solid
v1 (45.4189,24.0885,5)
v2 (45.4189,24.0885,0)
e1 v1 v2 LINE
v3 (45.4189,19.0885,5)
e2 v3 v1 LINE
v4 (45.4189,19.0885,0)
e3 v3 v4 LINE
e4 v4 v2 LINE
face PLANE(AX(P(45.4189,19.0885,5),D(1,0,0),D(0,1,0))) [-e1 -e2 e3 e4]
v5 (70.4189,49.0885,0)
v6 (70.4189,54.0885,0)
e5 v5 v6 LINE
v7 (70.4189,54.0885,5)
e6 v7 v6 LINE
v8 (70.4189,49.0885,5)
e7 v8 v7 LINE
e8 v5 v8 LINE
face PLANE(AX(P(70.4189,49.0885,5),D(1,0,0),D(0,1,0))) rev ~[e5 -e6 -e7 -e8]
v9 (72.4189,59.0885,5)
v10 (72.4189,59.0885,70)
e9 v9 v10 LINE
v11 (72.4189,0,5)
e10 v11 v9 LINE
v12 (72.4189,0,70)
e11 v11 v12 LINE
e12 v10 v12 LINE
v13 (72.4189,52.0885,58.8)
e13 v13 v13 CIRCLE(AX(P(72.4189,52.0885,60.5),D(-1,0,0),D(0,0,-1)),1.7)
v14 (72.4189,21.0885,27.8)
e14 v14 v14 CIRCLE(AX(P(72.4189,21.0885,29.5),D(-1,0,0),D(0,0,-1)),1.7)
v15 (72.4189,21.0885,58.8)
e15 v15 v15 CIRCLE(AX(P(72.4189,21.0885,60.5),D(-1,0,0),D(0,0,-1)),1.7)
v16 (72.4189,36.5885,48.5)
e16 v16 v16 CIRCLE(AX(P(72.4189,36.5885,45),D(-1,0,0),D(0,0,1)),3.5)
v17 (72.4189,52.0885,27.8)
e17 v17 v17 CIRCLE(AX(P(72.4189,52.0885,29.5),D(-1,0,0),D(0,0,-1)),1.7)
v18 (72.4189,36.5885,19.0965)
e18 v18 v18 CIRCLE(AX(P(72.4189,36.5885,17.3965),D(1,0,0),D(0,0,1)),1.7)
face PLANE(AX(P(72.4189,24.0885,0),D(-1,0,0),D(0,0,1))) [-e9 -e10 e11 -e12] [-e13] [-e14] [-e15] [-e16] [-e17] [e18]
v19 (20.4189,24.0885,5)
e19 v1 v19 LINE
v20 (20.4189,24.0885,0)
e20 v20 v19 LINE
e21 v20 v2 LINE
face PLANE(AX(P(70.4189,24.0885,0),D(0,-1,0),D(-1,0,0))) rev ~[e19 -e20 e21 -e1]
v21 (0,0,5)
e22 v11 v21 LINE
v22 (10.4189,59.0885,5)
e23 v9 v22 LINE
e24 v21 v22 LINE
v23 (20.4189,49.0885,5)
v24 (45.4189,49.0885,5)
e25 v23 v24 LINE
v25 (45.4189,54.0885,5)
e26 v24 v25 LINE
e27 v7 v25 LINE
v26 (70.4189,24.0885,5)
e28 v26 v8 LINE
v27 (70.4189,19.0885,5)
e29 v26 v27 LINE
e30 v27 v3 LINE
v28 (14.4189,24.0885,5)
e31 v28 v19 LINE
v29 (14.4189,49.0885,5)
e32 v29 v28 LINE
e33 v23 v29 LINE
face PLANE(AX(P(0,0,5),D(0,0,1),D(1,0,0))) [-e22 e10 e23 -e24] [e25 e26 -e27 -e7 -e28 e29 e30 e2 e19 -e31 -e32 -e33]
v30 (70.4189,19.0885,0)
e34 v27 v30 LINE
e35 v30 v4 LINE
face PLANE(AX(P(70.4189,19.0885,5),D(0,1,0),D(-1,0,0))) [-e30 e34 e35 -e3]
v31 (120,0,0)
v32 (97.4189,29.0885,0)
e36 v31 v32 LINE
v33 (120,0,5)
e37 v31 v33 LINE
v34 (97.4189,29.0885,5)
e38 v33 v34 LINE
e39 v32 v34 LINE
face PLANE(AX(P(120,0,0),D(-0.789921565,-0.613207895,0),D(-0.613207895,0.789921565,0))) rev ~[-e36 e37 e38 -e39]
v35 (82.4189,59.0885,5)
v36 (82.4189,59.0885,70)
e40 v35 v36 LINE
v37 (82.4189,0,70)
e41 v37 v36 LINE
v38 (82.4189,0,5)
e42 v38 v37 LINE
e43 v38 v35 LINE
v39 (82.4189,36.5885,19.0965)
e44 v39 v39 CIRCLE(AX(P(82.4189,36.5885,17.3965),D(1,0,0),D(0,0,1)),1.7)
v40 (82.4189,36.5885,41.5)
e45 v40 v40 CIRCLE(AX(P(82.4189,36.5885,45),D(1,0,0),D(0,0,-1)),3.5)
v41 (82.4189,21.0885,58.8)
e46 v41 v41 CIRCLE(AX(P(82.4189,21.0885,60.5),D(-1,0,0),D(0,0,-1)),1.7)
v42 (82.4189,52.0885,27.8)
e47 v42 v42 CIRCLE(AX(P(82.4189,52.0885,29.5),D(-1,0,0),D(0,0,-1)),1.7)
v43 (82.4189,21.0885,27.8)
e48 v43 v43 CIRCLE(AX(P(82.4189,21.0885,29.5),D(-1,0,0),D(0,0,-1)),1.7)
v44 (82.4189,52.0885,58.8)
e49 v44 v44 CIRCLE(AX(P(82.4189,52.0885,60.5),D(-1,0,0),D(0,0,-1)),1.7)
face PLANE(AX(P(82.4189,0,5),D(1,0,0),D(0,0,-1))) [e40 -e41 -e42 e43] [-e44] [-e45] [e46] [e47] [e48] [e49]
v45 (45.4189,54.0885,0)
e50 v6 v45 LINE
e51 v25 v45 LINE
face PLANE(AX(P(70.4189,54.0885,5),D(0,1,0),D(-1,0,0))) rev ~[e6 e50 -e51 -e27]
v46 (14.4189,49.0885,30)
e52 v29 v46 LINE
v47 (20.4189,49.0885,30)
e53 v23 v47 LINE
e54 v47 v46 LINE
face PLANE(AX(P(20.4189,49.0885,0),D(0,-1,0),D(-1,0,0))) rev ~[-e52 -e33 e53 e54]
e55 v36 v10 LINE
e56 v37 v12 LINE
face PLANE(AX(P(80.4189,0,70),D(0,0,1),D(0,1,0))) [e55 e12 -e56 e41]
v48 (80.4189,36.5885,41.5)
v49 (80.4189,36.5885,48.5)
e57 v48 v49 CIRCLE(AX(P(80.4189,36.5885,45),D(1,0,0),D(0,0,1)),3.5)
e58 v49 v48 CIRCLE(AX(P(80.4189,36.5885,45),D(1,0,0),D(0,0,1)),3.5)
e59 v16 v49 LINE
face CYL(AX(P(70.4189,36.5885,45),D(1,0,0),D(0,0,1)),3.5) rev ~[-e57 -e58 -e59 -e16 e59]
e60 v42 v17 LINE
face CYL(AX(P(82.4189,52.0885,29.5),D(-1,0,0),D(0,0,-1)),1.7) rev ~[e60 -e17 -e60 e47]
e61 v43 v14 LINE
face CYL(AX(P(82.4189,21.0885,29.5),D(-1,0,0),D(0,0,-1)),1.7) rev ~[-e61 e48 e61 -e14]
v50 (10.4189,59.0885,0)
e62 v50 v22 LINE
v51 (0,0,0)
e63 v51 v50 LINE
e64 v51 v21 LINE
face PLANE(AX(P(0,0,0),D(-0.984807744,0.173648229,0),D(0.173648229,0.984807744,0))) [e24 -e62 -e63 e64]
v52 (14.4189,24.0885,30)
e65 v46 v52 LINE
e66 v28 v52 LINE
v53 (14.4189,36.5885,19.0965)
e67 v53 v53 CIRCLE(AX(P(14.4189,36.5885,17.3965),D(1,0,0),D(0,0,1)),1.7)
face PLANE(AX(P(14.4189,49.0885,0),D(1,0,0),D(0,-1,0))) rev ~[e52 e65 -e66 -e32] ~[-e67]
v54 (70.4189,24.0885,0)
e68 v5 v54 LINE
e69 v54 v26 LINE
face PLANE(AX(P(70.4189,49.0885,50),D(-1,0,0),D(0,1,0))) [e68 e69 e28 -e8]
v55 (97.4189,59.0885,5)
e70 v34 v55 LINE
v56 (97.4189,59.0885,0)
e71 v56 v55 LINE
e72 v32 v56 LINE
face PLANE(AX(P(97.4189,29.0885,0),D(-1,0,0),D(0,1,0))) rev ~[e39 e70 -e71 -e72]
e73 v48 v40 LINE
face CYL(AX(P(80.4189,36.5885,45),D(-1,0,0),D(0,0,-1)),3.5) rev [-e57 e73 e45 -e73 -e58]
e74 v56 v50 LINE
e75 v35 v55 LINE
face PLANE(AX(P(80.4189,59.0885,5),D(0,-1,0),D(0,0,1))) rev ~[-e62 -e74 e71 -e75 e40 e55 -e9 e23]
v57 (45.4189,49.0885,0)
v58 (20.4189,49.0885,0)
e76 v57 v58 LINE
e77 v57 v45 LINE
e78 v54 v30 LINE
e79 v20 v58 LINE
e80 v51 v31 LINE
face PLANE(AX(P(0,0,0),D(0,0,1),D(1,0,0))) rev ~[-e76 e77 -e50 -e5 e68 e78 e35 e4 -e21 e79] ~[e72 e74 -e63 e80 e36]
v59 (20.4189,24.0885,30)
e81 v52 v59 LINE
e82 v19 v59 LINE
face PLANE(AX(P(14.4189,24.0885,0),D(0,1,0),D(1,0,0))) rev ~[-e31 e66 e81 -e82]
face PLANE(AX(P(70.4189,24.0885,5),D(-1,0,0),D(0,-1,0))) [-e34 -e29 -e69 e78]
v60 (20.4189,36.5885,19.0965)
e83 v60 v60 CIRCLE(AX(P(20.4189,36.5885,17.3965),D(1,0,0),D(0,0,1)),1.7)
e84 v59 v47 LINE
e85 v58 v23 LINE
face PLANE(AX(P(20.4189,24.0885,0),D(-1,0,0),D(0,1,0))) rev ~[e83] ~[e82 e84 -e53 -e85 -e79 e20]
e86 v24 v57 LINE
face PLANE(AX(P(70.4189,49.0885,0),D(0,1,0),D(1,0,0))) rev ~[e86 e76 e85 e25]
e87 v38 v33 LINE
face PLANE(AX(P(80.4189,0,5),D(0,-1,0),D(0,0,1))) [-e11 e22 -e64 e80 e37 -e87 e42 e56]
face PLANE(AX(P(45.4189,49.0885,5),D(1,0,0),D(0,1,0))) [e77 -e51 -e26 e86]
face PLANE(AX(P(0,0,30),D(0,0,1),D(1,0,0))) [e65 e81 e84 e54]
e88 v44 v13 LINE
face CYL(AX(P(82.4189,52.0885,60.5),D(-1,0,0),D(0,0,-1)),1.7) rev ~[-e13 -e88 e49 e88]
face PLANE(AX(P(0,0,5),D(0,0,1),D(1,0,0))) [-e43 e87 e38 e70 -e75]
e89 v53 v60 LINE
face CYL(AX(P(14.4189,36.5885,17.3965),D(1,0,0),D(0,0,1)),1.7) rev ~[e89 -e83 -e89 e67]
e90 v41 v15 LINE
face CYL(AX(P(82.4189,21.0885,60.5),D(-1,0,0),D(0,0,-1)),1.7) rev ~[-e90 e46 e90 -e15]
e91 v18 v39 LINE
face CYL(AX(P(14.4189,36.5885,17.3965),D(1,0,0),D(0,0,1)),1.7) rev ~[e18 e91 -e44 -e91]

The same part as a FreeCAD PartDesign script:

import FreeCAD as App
import Part
import Sketcher
from FreeCAD import Vector
Q = App.Units.Quantity


def add_polygon(sketch, points):
    """Adds a closed chain of lines whose ends are joined by coincident constraints."""
    first, n = sketch.GeometryCount, len(points)
    for a, b in zip(points, points[1:] + points[:1]):
        sketch.addGeometry(Part.LineSegment(App.Vector(*a, 0), App.Vector(*b, 0)), False)
    for i in range(n):
        sketch.addConstraint(Sketcher.Constraint("Coincident", first + i, 2, first + (i + 1) % n, 1))

doc = App.newDocument("Part")
body = doc.addObject("PartDesign::Body", "Body")

# Sketch on XY plane
sketch1 = body.newObject("Sketcher::SketchObject", "Sketch")
sketch1.AttachmentSupport = (doc.getObject("XY_Plane"), [""])
sketch1.MapMode = "FlatFace"
add_polygon(sketch1, [(10, 59), (0, 0), (120, 0), (97, 29), (97, 59)])  # lines 0-4
add_polygon(sketch1, [(14, 49), (80, 49), (80, 24), (14, 24)])  # lines 5-8
sketch1.addConstraint([
    Sketcher.Constraint("Horizontal", 1),
    Sketcher.Constraint("Vertical", 3),
    Sketcher.Constraint("Horizontal", 4),
    Sketcher.Constraint("Horizontal", 5),
    Sketcher.Constraint("Vertical", 6),
    Sketcher.Constraint("Horizontal", 7),
    Sketcher.Constraint("Vertical", 8),
    Sketcher.Constraint("Coincident", 0, 2, -1, 1),
    Sketcher.Constraint("DistanceX", 1, 1, 1, 2, 120.0),
    Sketcher.Constraint("DistanceY", 3, 1, 3, 2, 30.0),
    Sketcher.Constraint("DistanceY", 6, 2, 6, 1, 25.0),
    Sketcher.Constraint("Distance", 0, 60.0),
    Sketcher.Constraint("DistanceY", 5, 2, 3, 2, 10.0),
    Sketcher.Constraint("DistanceX", 4, 2, 4, 1, 87.0),
    Sketcher.Constraint("DistanceX", 5, 1, 5, 2, 66.0),
    Sketcher.Constraint("Angle", 0, Q("-100 deg")),
    Sketcher.Constraint("DistanceX", 5, 2, 3, 2, 17.0),
])
pad1 = body.newObject("PartDesign::Pad", "Pad")
pad1.Profile = sketch1
pad1.Length = 5

# Sketch on XY plane
sketch2 = body.newObject("Sketcher::SketchObject", "Sketch001")
sketch2.AttachmentSupport = (doc.getObject("XY_Plane"), [""])
sketch2.MapMode = "FlatFace"
add_polygon(sketch2, [(20, 24), (20, 49), (14, 49), (14, 24)])  # lines 0-3
sketch2.addConstraint([
    Sketcher.Constraint("Vertical", 0),
    Sketcher.Constraint("Horizontal", 1),
    Sketcher.Constraint("Vertical", 2),
    Sketcher.Constraint("Horizontal", 3),
    Sketcher.Constraint("DistanceX", 1, 2, 1, 1, 6.0),
    Sketcher.Constraint("DistanceY", 0, 1, 0, 2, 25.0),
    Sketcher.Constraint("DistanceX", -1, 1, 0, 2, 20.419),
    Sketcher.Constraint("DistanceY", -1, 1, 0, 2, 49.0885),
])
pad2 = body.newObject("PartDesign::Pad", "Pad001")
pad2.Profile = sketch2
pad2.Length = 30

# Sketch on XY plane
sketch3 = body.newObject("Sketcher::SketchObject", "Sketch002")
sketch3.AttachmentSupport = (doc.getObject("XY_Plane"), [""])
sketch3.MapMode = "FlatFace"
add_polygon(sketch3, [(80, 49), (70, 49), (70, 24), (80, 24)])  # lines 0-3
sketch3.addConstraint([
    Sketcher.Constraint("Horizontal", 0),
    Sketcher.Constraint("Vertical", 1),
    Sketcher.Constraint("Horizontal", 2),
    Sketcher.Constraint("Vertical", 3),
    Sketcher.Constraint("DistanceX", 0, 2, 0, 1, 10.0),
    Sketcher.Constraint("DistanceY", 1, 2, 1, 1, 25.0),
    Sketcher.Constraint("DistanceX", -1, 1, 0, 2, 70.419),
    Sketcher.Constraint("DistanceY", -1, 1, 0, 2, 49.0885),
])
pad3 = body.newObject("PartDesign::Pad", "Pad002")
pad3.Profile = sketch3
pad3.Length = 50

# Sketch on XZ plane
sketch4 = body.newObject("Sketcher::SketchObject", "Sketch003")
sketch4.AttachmentSupport = (doc.getObject("XZ_Plane"), [""])
sketch4.MapMode = "FlatFace"
sketch4.AttachmentOffset = App.Placement(Vector(0, 0, -49.0885), App.Rotation())
add_polygon(sketch4, [(80, 5), (70, 5), (70, 50), (80, 50)])  # lines 0-3
sketch4.addConstraint([
    Sketcher.Constraint("Horizontal", 0),
    Sketcher.Constraint("Vertical", 1),
    Sketcher.Constraint("Horizontal", 2),
    Sketcher.Constraint("Vertical", 3),
    Sketcher.Constraint("DistanceX", 0, 2, 0, 1, 10.0),
    Sketcher.Constraint("DistanceY", 1, 1, 1, 2, 45.0),
    Sketcher.Constraint("DistanceY", -1, 1, 0, 2, 5.0),
    Sketcher.Constraint("DistanceX", -1, 1, 0, 2, 70.419),
])
pad4 = body.newObject("PartDesign::Pad", "Pad003")
pad4.Profile = sketch4
pad4.Length = 10
pad4.Reversed = True

# Sketch on XZ plane
sketch5 = body.newObject("Sketcher::SketchObject", "Sketch004")
sketch5.AttachmentSupport = (doc.getObject("XZ_Plane"), [""])
sketch5.MapMode = "FlatFace"
sketch5.AttachmentOffset = App.Placement(Vector(0, 0, -24.0885), App.Rotation())
add_polygon(sketch5, [(80, 50), (70, 50), (70, 5), (80, 5)])  # lines 0-3
sketch5.addConstraint([
    Sketcher.Constraint("Horizontal", 0),
    Sketcher.Constraint("Vertical", 1),
    Sketcher.Constraint("Horizontal", 2),
    Sketcher.Constraint("Vertical", 3),
    Sketcher.Constraint("DistanceX", 0, 2, 0, 1, 10.0),
    Sketcher.Constraint("DistanceY", 1, 2, 1, 1, 45.0),
    Sketcher.Constraint("DistanceY", -1, 1, 0, 2, 50.0),
    Sketcher.Constraint("DistanceX", -1, 1, 0, 2, 70.419),
])
pad5 = body.newObject("PartDesign::Pad", "Pad004")
pad5.Profile = sketch5
pad5.Length = 24.0885

# Sketch on XY plane
sketch6 = body.newObject("Sketcher::SketchObject", "Sketch005")
sketch6.AttachmentSupport = (doc.getObject("XY_Plane"), [""])
sketch6.MapMode = "FlatFace"
sketch6.AttachmentOffset = App.Placement(Vector(0, 0, 50), App.Rotation())
add_polygon(sketch6, [(70, 59), (70, 0), (80, 0), (80, 59)])  # lines 0-3
sketch6.addConstraint([
    Sketcher.Constraint("Vertical", 0),
    Sketcher.Constraint("Horizontal", 1),
    Sketcher.Constraint("Vertical", 2),
    Sketcher.Constraint("Horizontal", 3),
    Sketcher.Constraint("PointOnObject", 0, 2, -1),
    Sketcher.Constraint("DistanceX", 1, 1, 1, 2, 10.0),
    Sketcher.Constraint("DistanceY", 0, 2, 0, 1, 59.0885),
    Sketcher.Constraint("DistanceX", -1, 1, 0, 2, 70.419),
])
pad6 = body.newObject("PartDesign::Pad", "Pad005")
pad6.Profile = sketch6
pad6.Length = 20

# Sketch on YZ plane
sketch7 = body.newObject("Sketcher::SketchObject", "Sketch006")
sketch7.AttachmentSupport = (doc.getObject("YZ_Plane"), [""])
sketch7.MapMode = "FlatFace"
sketch7.AttachmentOffset = App.Placement(Vector(0, 0, 70.4189), App.Rotation())
sketch7.addGeometry(Part.Circle(Vector(36.6, 45, 0), Vector(0, 0, 1), 3.5), False)
sketch7.addConstraint([
    Sketcher.Constraint("Diameter", 0, 7.0),
    Sketcher.Constraint("DistanceY", -1, 1, 0, 3, 45.0),
    Sketcher.Constraint("DistanceX", -1, 1, 0, 3, 36.5885),
])
doc.recompute()
hole = body.newObject("PartDesign::Hole", "Hole")
hole.Profile = sketch7
hole.ThreadType = "None"
hole.Diameter = 7
hole.DepthType = "ThroughAll"
hole.Reversed = True

# Sketch on YZ plane
sketch8 = body.newObject("Sketcher::SketchObject", "Sketch007")
sketch8.AttachmentSupport = (doc.getObject("YZ_Plane"), [""])
sketch8.MapMode = "FlatFace"
sketch8.AttachmentOffset = App.Placement(Vector(0, 0, 80.4189), App.Rotation())
add_polygon(sketch8, [(0, 5), (59.1, 5), (59.1, 70), (0, 70)])  # lines 0-3
sketch8.addGeometry(Part.Circle(Vector(36.6, 45, 0), Vector(0, 0, 1), 3.5), False)  # 4
sketch8.addConstraint([
    Sketcher.Constraint("Horizontal", 0),
    Sketcher.Constraint("Vertical", 1),
    Sketcher.Constraint("Horizontal", 2),
    Sketcher.Constraint("Vertical", 3),
    Sketcher.Constraint("PointOnObject", 2, 2, -2),
    Sketcher.Constraint("Diameter", 4, 7.0),
    Sketcher.Constraint("DistanceY", 1, 1, 1, 2, 65.0),
    Sketcher.Constraint("DistanceY", -1, 1, 4, 3, 45.0),
    Sketcher.Constraint("DistanceY", -1, 1, 0, 2, 5.0),
    Sketcher.Constraint("DistanceX", 4, 3, 0, 2, 22.5),
    Sketcher.Constraint("DistanceX", 0, 1, 0, 2, 59.0885),
])
pad7 = body.newObject("PartDesign::Pad", "Pad006")
pad7.Profile = sketch8
pad7.Length = 2

# Sketch on YZ plane
sketch9 = body.newObject("Sketcher::SketchObject", "Sketch008")
sketch9.AttachmentSupport = (doc.getObject("YZ_Plane"), [""])
sketch9.MapMode = "FlatFace"
sketch9.AttachmentOffset = App.Placement(Vector(0, 0, 70.4189), App.Rotation())
add_polygon(sketch9, [(59.1, 70), (59.1, 5), (0, 5), (0, 70)])  # lines 0-3
sketch9.addGeometry(Part.Circle(Vector(36.6, 45, 0), Vector(0, 0, 1), 3.5), False)  # 4
sketch9.addConstraint([
    Sketcher.Constraint("Vertical", 0),
    Sketcher.Constraint("Horizontal", 1),
    Sketcher.Constraint("Vertical", 2),
    Sketcher.Constraint("Horizontal", 3),
    Sketcher.Constraint("PointOnObject", 1, 2, -2),
    Sketcher.Constraint("Diameter", 4, 7.0),
    Sketcher.Constraint("DistanceY", 0, 2, 0, 1, 65.0),
    Sketcher.Constraint("DistanceY", -1, 1, 4, 3, 45.0),
    Sketcher.Constraint("DistanceY", -1, 1, 0, 2, 5.0),
    Sketcher.Constraint("DistanceX", 4, 3, 0, 2, 22.5),
    Sketcher.Constraint("DistanceX", 1, 2, 1, 1, 59.0885),
])
pocket1 = body.newObject("PartDesign::Pocket", "Pocket")
pocket1.Profile = sketch9
pocket1.Length = 2
pocket1.Reversed = True

# Sketch on YZ plane
sketch10 = body.newObject("Sketcher::SketchObject", "Sketch009")
sketch10.AttachmentSupport = (doc.getObject("YZ_Plane"), [""])
sketch10.MapMode = "FlatFace"
sketch10.AttachmentOffset = App.Placement(Vector(0, 0, 82.4189), App.Rotation())
sketch10.addGeometry([
    Part.Circle(Vector(52.1, 60.5, 0), Vector(0, 0, 1), 1.7),
    Part.Circle(Vector(52.1, 29.5, 0), Vector(0, 0, 1), 1.7),
    Part.Circle(Vector(21.1, 60.5, 0), Vector(0, 0, 1), 1.7),
    Part.Circle(Vector(21.1, 29.5, 0), Vector(0, 0, 1), 1.7),
], False)
sketch10.addConstraint([
    Sketcher.Constraint("Equal", 0, 1),
    Sketcher.Constraint("Equal", 1, 2),
    Sketcher.Constraint("Equal", 2, 3),
    Sketcher.Constraint("Horizontal", 0, 3, 2, 3),
    Sketcher.Constraint("Horizontal", 1, 3, 3, 3),
    Sketcher.Constraint("Vertical", 0, 3, 1, 3),
    Sketcher.Constraint("Vertical", 2, 3, 3, 3),
    Sketcher.Constraint("Diameter", 0, 3.4),
    Sketcher.Constraint("DistanceY", 1, 3, 0, 3, 31.0),
    Sketcher.Constraint("DistanceX", 2, 3, 0, 3, 31.0),
    Sketcher.Constraint("DistanceY", -1, 1, 0, 3, 60.5),
    Sketcher.Constraint("DistanceX", -1, 1, 0, 3, 52.0885),
])
doc.recompute()
hole2 = body.newObject("PartDesign::Hole", "Hole001")
hole2.Profile = sketch10
hole2.ThreadType = "None"
hole2.Diameter = 3.4
hole2.DepthType = "ThroughAll"

# Sketch on YZ plane
sketch11 = body.newObject("Sketcher::SketchObject", "Sketch010")
sketch11.AttachmentSupport = (doc.getObject("YZ_Plane"), [""])
sketch11.MapMode = "FlatFace"
sketch11.AttachmentOffset = App.Placement(Vector(0, 0, 14.4189), App.Rotation())
sketch11.addGeometry(Part.Circle(Vector(36.6, 17.4, 0), Vector(0, 0, 1), 1.7), False)
sketch11.addConstraint([
    Sketcher.Constraint("Diameter", 0, 3.4),
    Sketcher.Constraint("DistanceX", -1, 1, 0, 3, 36.5885),
    Sketcher.Constraint("DistanceY", -1, 1, 0, 3, 17.3965),
])
doc.recompute()
hole3 = body.newObject("PartDesign::Hole", "Hole002")
hole3.Profile = sketch11
hole3.ThreadType = "None"
hole3.Diameter = 3.4
hole3.DepthType = "ThroughAll"
hole3.Reversed = True

# Sketch on XY plane
sketch12 = body.newObject("Sketcher::SketchObject", "Sketch011")
sketch12.AttachmentSupport = (doc.getObject("XY_Plane"), [""])
sketch12.MapMode = "FlatFace"
sketch12.AttachmentOffset = App.Placement(Vector(0, 0, 5), App.Rotation())
add_polygon(sketch12, [(45, 54), (45, 49), (70, 49), (70, 54)])  # lines 0-3
add_polygon(sketch12, [(70, 24), (45, 24), (45, 19), (70, 19)])  # lines 4-7
sketch12.addConstraint([
    Sketcher.Constraint("Vertical", 0),
    Sketcher.Constraint("Horizontal", 1),
    Sketcher.Constraint("Vertical", 2),
    Sketcher.Constraint("Horizontal", 3),
    Sketcher.Constraint("Horizontal", 4),
    Sketcher.Constraint("Vertical", 5),
    Sketcher.Constraint("Horizontal", 6),
    Sketcher.Constraint("Vertical", 7),
    Sketcher.Constraint("Vertical", 3, 2, 4, 2),
    Sketcher.Constraint("Vertical", 2, 2, 6, 2),
    Sketcher.Constraint("Equal", 2, 5),
    Sketcher.Constraint("DistanceY", 0, 2, 0, 1, 5.0),
    Sketcher.Constraint("DistanceX", 1, 1, 1, 2, 25.0),
    Sketcher.Constraint("DistanceY", 4, 2, 0, 2, 25.0),
    Sketcher.Constraint("DistanceX", -1, 1, 0, 2, 45.419),
    Sketcher.Constraint("DistanceY", -1, 1, 0, 2, 49.0885),
])
pocket2 = body.newObject("PartDesign::Pocket", "Pocket001")
pocket2.Profile = sketch12
pocket2.Length = 10

doc.recompute()
